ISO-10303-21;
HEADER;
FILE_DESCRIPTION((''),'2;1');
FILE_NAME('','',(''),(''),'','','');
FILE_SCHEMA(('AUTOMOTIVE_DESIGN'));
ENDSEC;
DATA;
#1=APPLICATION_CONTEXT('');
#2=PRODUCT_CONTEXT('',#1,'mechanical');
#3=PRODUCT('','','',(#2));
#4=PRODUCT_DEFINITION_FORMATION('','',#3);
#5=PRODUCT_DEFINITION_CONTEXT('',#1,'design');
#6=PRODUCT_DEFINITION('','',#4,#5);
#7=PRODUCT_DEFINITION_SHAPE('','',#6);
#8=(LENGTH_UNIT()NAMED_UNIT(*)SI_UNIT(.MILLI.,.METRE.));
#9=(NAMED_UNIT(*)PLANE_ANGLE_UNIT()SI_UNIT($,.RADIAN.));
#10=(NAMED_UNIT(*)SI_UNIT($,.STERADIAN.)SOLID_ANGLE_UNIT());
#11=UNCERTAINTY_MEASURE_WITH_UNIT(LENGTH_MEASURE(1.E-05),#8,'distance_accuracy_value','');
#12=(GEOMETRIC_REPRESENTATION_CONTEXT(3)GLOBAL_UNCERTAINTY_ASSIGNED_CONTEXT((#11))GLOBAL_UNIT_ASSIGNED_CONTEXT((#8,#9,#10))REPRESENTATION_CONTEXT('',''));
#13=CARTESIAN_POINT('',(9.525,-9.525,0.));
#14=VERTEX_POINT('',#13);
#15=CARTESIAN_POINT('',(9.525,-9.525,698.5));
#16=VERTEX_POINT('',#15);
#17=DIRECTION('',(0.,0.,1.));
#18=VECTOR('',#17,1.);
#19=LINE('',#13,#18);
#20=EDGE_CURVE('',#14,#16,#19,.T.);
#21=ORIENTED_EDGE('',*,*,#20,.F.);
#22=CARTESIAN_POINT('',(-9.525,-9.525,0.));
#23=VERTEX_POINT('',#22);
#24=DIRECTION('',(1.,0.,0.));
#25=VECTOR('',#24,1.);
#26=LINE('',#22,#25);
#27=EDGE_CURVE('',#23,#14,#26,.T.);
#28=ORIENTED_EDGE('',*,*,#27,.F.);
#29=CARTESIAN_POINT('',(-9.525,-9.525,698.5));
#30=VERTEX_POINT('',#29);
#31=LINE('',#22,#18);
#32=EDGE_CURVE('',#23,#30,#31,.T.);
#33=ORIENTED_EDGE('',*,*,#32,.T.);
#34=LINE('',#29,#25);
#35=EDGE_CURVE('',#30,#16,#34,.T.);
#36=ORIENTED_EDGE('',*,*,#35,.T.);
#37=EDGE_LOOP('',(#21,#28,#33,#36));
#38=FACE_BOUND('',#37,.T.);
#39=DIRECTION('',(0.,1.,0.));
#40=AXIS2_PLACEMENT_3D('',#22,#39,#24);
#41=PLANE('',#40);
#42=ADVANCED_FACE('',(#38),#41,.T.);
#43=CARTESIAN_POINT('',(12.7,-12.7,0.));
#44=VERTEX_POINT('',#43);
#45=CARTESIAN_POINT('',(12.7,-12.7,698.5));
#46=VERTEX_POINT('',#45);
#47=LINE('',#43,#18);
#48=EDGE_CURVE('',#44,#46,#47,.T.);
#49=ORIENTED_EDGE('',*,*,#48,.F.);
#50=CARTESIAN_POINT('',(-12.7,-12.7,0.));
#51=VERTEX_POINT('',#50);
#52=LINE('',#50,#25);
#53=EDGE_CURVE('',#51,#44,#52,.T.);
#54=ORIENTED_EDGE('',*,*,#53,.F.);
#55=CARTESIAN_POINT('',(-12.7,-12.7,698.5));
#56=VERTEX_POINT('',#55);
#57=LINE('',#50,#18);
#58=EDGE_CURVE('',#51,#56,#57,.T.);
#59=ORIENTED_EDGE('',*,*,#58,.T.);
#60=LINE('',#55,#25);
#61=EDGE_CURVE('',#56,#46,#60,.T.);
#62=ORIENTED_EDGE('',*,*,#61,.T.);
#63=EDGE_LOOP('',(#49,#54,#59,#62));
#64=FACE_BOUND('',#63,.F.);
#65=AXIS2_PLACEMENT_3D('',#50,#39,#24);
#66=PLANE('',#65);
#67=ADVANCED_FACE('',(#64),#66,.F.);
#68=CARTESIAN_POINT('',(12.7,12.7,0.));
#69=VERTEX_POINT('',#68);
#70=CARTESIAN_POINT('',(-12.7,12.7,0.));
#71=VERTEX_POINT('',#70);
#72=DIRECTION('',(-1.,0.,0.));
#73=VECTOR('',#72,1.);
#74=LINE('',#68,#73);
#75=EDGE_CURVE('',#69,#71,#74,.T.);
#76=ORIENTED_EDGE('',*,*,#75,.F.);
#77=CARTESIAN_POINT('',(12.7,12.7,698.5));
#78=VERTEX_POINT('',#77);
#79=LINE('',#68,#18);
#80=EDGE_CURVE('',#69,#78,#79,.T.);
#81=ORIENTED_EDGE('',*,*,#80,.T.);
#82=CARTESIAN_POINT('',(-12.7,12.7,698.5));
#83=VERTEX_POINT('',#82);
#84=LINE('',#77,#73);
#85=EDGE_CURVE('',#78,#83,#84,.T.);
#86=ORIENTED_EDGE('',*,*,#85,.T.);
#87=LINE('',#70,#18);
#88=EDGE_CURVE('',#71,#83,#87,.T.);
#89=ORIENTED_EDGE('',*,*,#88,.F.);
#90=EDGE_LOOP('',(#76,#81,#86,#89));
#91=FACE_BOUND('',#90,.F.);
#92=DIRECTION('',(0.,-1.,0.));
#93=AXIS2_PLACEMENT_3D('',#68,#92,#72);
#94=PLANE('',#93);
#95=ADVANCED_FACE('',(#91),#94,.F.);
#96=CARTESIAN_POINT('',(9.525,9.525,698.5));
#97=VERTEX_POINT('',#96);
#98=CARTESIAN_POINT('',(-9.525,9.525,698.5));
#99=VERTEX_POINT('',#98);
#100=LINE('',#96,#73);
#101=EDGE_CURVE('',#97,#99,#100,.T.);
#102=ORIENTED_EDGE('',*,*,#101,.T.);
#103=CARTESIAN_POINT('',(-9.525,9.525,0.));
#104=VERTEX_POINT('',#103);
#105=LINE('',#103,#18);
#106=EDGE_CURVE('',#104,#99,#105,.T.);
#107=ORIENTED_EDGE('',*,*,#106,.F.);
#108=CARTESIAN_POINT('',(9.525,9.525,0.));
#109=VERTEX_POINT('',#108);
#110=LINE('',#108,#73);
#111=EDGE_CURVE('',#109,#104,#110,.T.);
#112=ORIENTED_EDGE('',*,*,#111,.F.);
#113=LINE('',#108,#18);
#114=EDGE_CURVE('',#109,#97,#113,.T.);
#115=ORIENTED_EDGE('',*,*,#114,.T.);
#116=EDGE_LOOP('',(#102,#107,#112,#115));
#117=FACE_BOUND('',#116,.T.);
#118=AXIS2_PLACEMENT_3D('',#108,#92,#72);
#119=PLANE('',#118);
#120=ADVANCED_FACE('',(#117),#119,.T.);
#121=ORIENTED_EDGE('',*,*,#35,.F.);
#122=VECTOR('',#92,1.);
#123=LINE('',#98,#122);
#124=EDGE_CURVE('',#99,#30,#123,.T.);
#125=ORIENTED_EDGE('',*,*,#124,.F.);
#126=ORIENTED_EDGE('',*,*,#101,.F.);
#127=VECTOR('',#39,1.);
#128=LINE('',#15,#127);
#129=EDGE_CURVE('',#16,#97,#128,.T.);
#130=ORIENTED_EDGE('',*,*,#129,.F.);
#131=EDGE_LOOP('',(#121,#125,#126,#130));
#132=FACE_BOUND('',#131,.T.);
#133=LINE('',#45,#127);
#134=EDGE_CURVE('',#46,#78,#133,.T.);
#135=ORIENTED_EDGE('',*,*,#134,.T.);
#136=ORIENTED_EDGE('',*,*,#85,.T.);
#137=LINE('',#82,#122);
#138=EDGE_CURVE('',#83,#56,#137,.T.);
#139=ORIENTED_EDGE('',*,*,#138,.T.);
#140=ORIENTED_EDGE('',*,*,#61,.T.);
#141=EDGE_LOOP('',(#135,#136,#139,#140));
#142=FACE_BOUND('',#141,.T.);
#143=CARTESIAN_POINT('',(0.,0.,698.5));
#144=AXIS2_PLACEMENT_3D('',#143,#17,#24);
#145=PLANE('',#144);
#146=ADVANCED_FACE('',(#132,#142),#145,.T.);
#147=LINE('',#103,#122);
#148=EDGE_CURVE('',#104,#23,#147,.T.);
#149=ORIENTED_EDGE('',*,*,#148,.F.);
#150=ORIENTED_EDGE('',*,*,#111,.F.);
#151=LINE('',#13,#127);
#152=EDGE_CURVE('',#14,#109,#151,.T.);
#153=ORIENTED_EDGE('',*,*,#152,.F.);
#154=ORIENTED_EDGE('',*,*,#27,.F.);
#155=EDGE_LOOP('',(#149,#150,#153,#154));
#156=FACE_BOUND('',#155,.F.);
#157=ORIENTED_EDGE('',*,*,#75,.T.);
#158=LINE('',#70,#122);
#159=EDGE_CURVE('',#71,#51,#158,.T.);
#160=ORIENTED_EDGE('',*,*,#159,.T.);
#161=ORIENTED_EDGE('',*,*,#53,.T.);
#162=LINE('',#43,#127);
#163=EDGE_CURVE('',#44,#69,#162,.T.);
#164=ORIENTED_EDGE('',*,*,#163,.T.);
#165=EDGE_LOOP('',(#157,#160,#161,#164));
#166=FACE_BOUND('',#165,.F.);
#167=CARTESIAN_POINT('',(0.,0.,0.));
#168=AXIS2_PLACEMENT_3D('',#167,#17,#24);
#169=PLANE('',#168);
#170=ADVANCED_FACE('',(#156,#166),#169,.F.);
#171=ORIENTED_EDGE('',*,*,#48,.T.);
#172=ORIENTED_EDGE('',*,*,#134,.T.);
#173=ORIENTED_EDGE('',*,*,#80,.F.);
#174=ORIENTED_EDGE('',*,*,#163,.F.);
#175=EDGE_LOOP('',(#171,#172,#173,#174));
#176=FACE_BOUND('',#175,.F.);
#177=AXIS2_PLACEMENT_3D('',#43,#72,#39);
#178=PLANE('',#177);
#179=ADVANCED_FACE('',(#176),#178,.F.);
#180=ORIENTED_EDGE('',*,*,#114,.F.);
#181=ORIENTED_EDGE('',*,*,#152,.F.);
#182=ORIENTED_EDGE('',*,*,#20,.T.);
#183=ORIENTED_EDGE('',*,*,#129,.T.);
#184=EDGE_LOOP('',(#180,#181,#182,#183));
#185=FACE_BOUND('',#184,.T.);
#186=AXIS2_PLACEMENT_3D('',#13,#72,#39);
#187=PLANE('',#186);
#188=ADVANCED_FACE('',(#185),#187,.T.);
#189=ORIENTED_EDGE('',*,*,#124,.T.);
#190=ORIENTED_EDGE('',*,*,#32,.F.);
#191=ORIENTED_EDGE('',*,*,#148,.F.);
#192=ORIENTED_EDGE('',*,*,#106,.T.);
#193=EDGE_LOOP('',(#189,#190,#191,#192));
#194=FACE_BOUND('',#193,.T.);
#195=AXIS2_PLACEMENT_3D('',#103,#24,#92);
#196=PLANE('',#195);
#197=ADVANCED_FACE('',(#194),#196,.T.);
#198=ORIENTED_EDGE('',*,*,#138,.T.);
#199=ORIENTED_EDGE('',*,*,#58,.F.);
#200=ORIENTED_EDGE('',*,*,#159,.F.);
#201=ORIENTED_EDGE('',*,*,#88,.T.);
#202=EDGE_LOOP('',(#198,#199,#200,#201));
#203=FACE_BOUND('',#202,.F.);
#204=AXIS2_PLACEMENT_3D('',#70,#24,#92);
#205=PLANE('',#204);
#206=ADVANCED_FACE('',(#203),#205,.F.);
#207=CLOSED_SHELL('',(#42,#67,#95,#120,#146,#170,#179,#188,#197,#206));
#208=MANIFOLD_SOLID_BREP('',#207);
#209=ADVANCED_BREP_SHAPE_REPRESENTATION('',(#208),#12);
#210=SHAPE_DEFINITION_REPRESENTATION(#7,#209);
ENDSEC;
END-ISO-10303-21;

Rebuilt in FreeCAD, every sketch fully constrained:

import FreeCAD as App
import Part
import Sketcher

V = App.Vector
Q = App.Units.Quantity


def add_polygon(sketch, points):
    """Adds a closed chain of lines whose ends are joined by coincident constraints."""
    first, n = sketch.GeometryCount, len(points)
    for a, b in zip(points, points[1:] + points[:1]):
        sketch.addGeometry(Part.LineSegment(App.Vector(*a, 0), App.Vector(*b, 0)), False)
    for i in range(n):
        sketch.addConstraint(Sketcher.Constraint("Coincident", first + i, 2, first + (i + 1) % n, 1))

doc = App.newDocument("Part")
body = doc.addObject("PartDesign::Body", "Body")

# Sketch on XY plane
sketch1 = body.newObject("Sketcher::SketchObject", "Sketch")
sketch1.AttachmentSupport = (doc.getObject("XY_Plane"), [""])
sketch1.MapMode = "FlatFace"
add_polygon(sketch1, [(12.7, 12.7), (-12.7, 12.7), (-12.7, -12.7), (12.7, -12.7)])  # lines 0-3
add_polygon(sketch1, [(-9.525, -9.525), (-9.525, 9.525), (9.525, 9.525), (9.525, -9.525)])  # lines 4-7
sketch1.addConstraint(Sketcher.Constraint("Horizontal", 0))
sketch1.addConstraint(Sketcher.Constraint("Vertical", 1))
sketch1.addConstraint(Sketcher.Constraint("Horizontal", 2))
sketch1.addConstraint(Sketcher.Constraint("Vertical", 3))
sketch1.addConstraint(Sketcher.Constraint("Vertical", 4))
sketch1.addConstraint(Sketcher.Constraint("Horizontal", 5))
sketch1.addConstraint(Sketcher.Constraint("Vertical", 6))
sketch1.addConstraint(Sketcher.Constraint("Horizontal", 7))
sketch1.addConstraint(Sketcher.Constraint("Symmetric", 0, 2, 2, 2, -1, 1))
sketch1.addConstraint(Sketcher.Constraint("Symmetric", 4, 2, 6, 2, -1, 1))
sketch1.addConstraint(Sketcher.Constraint("Equal", 2, 1))
sketch1.addConstraint(Sketcher.Constraint("Equal", 7, 4))
sketch1.addConstraint(Sketcher.Constraint("DistanceX", 0, 2, 0, 1, Q("1 in")))
sketch1.addConstraint(Sketcher.Constraint("DistanceX", 0, 2, 4, 2, Q("0.125 in")))
pad1 = body.newObject("PartDesign::Pad", "Pad")
pad1.Profile = sketch1
pad1.Length = Q("27.5 in")

doc.recompute()
